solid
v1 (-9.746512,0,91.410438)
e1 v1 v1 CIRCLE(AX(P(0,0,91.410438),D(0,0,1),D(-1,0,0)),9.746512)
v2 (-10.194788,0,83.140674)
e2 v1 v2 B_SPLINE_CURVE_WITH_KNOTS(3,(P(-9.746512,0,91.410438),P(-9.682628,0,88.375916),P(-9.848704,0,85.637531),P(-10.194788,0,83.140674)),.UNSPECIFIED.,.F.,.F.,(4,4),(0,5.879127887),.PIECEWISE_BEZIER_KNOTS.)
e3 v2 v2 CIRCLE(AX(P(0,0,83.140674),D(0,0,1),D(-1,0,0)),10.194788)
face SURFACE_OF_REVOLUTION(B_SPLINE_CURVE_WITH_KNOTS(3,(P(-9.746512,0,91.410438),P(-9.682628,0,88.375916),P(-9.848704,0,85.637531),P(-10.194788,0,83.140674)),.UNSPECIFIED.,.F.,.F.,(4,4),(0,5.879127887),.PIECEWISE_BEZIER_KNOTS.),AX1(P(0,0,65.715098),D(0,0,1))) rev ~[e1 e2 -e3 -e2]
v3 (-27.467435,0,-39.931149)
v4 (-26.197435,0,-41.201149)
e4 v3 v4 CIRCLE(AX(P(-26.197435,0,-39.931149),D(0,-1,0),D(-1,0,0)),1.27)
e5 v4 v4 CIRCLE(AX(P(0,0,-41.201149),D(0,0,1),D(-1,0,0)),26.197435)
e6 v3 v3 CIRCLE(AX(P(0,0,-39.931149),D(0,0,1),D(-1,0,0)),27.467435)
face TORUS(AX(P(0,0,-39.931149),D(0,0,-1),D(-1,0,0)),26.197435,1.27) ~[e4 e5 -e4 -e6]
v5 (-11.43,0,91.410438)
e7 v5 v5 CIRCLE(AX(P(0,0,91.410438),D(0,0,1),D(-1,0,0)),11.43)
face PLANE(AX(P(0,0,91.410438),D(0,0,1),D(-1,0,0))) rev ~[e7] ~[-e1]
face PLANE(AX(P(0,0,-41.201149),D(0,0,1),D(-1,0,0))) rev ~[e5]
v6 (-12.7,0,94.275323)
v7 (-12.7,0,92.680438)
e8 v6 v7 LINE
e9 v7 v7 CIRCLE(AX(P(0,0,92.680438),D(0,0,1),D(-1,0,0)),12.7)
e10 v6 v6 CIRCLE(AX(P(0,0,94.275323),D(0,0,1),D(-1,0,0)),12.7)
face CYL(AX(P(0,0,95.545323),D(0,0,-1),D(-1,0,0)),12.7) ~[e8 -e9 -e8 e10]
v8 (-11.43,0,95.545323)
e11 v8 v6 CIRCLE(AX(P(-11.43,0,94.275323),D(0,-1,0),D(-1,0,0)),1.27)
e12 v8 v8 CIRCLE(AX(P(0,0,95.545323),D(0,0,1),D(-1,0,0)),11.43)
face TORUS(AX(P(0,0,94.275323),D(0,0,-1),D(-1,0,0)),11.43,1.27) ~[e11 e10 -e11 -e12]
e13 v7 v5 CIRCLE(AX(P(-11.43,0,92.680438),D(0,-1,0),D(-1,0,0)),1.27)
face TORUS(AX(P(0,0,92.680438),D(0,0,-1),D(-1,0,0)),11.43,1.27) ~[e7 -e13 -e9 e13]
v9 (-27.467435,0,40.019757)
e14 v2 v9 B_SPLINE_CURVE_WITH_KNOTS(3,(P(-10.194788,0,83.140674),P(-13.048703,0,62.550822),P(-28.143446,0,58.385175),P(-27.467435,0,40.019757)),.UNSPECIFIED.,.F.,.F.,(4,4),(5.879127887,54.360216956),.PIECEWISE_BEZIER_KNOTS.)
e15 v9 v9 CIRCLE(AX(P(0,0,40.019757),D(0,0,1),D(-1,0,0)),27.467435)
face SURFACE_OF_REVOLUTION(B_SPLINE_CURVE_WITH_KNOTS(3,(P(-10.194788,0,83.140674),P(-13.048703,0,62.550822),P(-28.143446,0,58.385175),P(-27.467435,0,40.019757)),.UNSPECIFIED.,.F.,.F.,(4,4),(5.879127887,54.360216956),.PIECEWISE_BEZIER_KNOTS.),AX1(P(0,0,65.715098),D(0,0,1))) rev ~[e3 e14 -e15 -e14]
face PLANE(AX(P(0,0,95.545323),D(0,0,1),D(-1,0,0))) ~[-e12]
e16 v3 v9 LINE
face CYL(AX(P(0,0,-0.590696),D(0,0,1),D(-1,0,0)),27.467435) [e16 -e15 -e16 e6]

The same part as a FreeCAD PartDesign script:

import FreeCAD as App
import Part
import Sketcher
from FreeCAD import Vector
Q = App.Units.Quantity


def edges_at(feature, points):
    """Names of the edges that pass closest to the given points."""
    edges = feature.Shape.Edges
    near = lambda p: min(range(len(edges)), key=lambda i: edges[i].distToShape(Part.Vertex(*p))[0])
    return sorted({f"Edge{near(p) + 1}" for p in points})

doc = App.newDocument("Part")
body = doc.addObject("PartDesign::Body", "Body")

# Sketch on XZ plane
sketch1 = body.newObject("Sketcher::SketchObject", "Sketch")
sketch1.AttachmentSupport = (doc.getObject("XZ_Plane"), [""])
sketch1.MapMode = "FlatFace"
sketch1.addGeometry([
    Part.LineSegment(Vector(-27.467435, 40.019757, 0), Vector(-27.467435, -41.201149, 0)),
    Part.LineSegment(Vector(-27.467435, -41.201149, 0), Vector(0, -41.201149, 0)),
    Part.LineSegment(Vector(0, -41.201149, 0), Vector(0, 40.019757, 0)),
    Part.LineSegment(Vector(0, 40.019757, 0), Vector(-27.467435, 40.019757, 0)),
], False)
sketch1.addConstraint([
    Sketcher.Constraint("Coincident", 0, 2, 1, 1),
    Sketcher.Constraint("Coincident", 1, 2, 2, 1),
    Sketcher.Constraint("Coincident", 2, 2, 3, 1),
    Sketcher.Constraint("Coincident", 3, 2, 0, 1),
    Sketcher.Constraint("Vertical", 0),
    Sketcher.Constraint("Horizontal", 1),
    Sketcher.Constraint("Vertical", 2),
    Sketcher.Constraint("Horizontal", 3),
    Sketcher.Constraint("PointOnObject", 1, 2, -2),
    Sketcher.Constraint("DistanceX", 1, 1, 1, 2, Q("27.467435 mm")),
    Sketcher.Constraint("DistanceY", 0, 2, 0, 1, Q("81.220907 mm")),
    Sketcher.Constraint("DistanceY", 0, 2, -1, 1, Q("41.201149 mm")),
])
revolution = body.newObject("PartDesign::Revolution", "Revolution")
revolution.Profile = sketch1
revolution.ReferenceAxis = (sketch1, ["V_Axis"])
revolution.Angle = 360

# Sketch on XZ plane
sketch2 = body.newObject("Sketcher::SketchObject", "Sketch001")
sketch2.AttachmentSupport = (doc.getObject("XZ_Plane"), [""])
sketch2.MapMode = "FlatFace"
sketch2.addGeometry([
    Part.LineSegment(Vector(-27.467435, 40.019757, 0), Vector(0, 40.019757, 0)),
    Part.LineSegment(Vector(0, 40.019757, 0), Vector(0, 83.140674, 0)),
    Part.LineSegment(Vector(0, 83.140674, 0), Vector(-10.194788, 83.140674, 0)),
    Part.BSplineCurve([Vector(-10.194788, 83.140674, 0), Vector(-13.048703, 62.550822, 0), Vector(-28.143446, 58.385175, 0), Vector(-27.467435, 40.019757, 0)], [4, 4], [5.879127887, 54.360216956], False, 3, [1, 1, 1, 1], False),
], False)
sketch2.addConstraint([
    Sketcher.Constraint("Block", 3),
    Sketcher.Constraint("Coincident", 0, 2, 1, 1),
    Sketcher.Constraint("Coincident", 1, 2, 2, 1),
    Sketcher.Constraint("Coincident", 2, 2, 3, 1),
    Sketcher.Constraint("Coincident", 3, 2, 0, 1),
    Sketcher.Constraint("Horizontal", 0),
    Sketcher.Constraint("Vertical", 1),
    Sketcher.Constraint("Horizontal", 2),
    Sketcher.Constraint("PointOnObject", 0, 2, -2),
])
revolution2 = body.newObject("PartDesign::Revolution", "Revolution001")
revolution2.Profile = sketch2
revolution2.ReferenceAxis = (sketch2, ["V_Axis"])
revolution2.Angle = 360

# Sketch on XZ plane
sketch3 = body.newObject("Sketcher::SketchObject", "Sketch002")
sketch3.AttachmentSupport = (doc.getObject("XZ_Plane"), [""])
sketch3.MapMode = "FlatFace"
sketch3.addGeometry([
    Part.LineSegment(Vector(-10.194788, 83.140674, 0), Vector(0, 83.140674, 0)),
    Part.LineSegment(Vector(0, 83.140674, 0), Vector(0, 91.410438, 0)),
    Part.LineSegment(Vector(0, 91.410438, 0), Vector(-9.746512, 91.410438, 0)),
    Part.BSplineCurve([Vector(-9.746512, 91.410438, 0), Vector(-9.682628, 88.375916, 0), Vector(-9.848704, 85.637531, 0), Vector(-10.194788, 83.140674, 0)], [4, 4], [0, 5.879127887], False, 3, [1, 1, 1, 1], False),
], False)
sketch3.addConstraint([
    Sketcher.Constraint("Block", 3),
    Sketcher.Constraint("Coincident", 0, 2, 1, 1),
    Sketcher.Constraint("Coincident", 1, 2, 2, 1),
    Sketcher.Constraint("Coincident", 2, 2, 3, 1),
    Sketcher.Constraint("Coincident", 3, 2, 0, 1),
    Sketcher.Constraint("Horizontal", 0),
    Sketcher.Constraint("Vertical", 1),
    Sketcher.Constraint("Horizontal", 2),
    Sketcher.Constraint("PointOnObject", 0, 2, -2),
])
revolution3 = body.newObject("PartDesign::Revolution", "Revolution002")
revolution3.Profile = sketch3
revolution3.ReferenceAxis = (sketch3, ["V_Axis"])
revolution3.Angle = 360

# Sketch on XZ plane
sketch4 = body.newObject("Sketcher::SketchObject", "Sketch003")
sketch4.AttachmentSupport = (doc.getObject("XZ_Plane"), [""])
sketch4.MapMode = "FlatFace"
sketch4.addGeometry([
    Part.LineSegment(Vector(0, 91.410438, 0), Vector(0, 95.545323, 0)),
    Part.LineSegment(Vector(0, 95.545323, 0), Vector(-12.7, 95.545323, 0)),
    Part.LineSegment(Vector(-12.7, 95.545323, 0), Vector(-12.7, 91.410438, 0)),
    Part.LineSegment(Vector(-12.7, 91.410438, 0), Vector(0, 91.410438, 0)),
], False)
sketch4.addConstraint([
    Sketcher.Constraint("Coincident", 0, 2, 1, 1),
    Sketcher.Constraint("Coincident", 1, 2, 2, 1),
    Sketcher.Constraint("Coincident", 2, 2, 3, 1),
    Sketcher.Constraint("Coincident", 3, 2, 0, 1),
    Sketcher.Constraint("Vertical", 0),
    Sketcher.Constraint("Horizontal", 1),
    Sketcher.Constraint("Vertical", 2),
    Sketcher.Constraint("Horizontal", 3),
    Sketcher.Constraint("PointOnObject", 0, 2, -2),
    Sketcher.Constraint("DistanceX", 1, 2, 1, 1, Q("0.5 in")),
    Sketcher.Constraint("DistanceY", 0, 1, 0, 2, Q("4.134885 mm")),
    Sketcher.Constraint("DistanceY", -1, 1, 2, 2, Q("91.410438 mm")),
])
revolution4 = body.newObject("PartDesign::Revolution", "Revolution003")
revolution4.Profile = sketch4
revolution4.ReferenceAxis = (sketch4, ["V_Axis"])
revolution4.Angle = 360
doc.recompute()

fillet = body.newObject("PartDesign::Fillet", "Fillet")
fillet.Base = (revolution4, edges_at(revolution4, [(12.7, 0, 91.41), (12.7, 0, 95.545), (27.467, 0, -41.201)]))
fillet.Radius = Q("0.05 in")

doc.recompute()
